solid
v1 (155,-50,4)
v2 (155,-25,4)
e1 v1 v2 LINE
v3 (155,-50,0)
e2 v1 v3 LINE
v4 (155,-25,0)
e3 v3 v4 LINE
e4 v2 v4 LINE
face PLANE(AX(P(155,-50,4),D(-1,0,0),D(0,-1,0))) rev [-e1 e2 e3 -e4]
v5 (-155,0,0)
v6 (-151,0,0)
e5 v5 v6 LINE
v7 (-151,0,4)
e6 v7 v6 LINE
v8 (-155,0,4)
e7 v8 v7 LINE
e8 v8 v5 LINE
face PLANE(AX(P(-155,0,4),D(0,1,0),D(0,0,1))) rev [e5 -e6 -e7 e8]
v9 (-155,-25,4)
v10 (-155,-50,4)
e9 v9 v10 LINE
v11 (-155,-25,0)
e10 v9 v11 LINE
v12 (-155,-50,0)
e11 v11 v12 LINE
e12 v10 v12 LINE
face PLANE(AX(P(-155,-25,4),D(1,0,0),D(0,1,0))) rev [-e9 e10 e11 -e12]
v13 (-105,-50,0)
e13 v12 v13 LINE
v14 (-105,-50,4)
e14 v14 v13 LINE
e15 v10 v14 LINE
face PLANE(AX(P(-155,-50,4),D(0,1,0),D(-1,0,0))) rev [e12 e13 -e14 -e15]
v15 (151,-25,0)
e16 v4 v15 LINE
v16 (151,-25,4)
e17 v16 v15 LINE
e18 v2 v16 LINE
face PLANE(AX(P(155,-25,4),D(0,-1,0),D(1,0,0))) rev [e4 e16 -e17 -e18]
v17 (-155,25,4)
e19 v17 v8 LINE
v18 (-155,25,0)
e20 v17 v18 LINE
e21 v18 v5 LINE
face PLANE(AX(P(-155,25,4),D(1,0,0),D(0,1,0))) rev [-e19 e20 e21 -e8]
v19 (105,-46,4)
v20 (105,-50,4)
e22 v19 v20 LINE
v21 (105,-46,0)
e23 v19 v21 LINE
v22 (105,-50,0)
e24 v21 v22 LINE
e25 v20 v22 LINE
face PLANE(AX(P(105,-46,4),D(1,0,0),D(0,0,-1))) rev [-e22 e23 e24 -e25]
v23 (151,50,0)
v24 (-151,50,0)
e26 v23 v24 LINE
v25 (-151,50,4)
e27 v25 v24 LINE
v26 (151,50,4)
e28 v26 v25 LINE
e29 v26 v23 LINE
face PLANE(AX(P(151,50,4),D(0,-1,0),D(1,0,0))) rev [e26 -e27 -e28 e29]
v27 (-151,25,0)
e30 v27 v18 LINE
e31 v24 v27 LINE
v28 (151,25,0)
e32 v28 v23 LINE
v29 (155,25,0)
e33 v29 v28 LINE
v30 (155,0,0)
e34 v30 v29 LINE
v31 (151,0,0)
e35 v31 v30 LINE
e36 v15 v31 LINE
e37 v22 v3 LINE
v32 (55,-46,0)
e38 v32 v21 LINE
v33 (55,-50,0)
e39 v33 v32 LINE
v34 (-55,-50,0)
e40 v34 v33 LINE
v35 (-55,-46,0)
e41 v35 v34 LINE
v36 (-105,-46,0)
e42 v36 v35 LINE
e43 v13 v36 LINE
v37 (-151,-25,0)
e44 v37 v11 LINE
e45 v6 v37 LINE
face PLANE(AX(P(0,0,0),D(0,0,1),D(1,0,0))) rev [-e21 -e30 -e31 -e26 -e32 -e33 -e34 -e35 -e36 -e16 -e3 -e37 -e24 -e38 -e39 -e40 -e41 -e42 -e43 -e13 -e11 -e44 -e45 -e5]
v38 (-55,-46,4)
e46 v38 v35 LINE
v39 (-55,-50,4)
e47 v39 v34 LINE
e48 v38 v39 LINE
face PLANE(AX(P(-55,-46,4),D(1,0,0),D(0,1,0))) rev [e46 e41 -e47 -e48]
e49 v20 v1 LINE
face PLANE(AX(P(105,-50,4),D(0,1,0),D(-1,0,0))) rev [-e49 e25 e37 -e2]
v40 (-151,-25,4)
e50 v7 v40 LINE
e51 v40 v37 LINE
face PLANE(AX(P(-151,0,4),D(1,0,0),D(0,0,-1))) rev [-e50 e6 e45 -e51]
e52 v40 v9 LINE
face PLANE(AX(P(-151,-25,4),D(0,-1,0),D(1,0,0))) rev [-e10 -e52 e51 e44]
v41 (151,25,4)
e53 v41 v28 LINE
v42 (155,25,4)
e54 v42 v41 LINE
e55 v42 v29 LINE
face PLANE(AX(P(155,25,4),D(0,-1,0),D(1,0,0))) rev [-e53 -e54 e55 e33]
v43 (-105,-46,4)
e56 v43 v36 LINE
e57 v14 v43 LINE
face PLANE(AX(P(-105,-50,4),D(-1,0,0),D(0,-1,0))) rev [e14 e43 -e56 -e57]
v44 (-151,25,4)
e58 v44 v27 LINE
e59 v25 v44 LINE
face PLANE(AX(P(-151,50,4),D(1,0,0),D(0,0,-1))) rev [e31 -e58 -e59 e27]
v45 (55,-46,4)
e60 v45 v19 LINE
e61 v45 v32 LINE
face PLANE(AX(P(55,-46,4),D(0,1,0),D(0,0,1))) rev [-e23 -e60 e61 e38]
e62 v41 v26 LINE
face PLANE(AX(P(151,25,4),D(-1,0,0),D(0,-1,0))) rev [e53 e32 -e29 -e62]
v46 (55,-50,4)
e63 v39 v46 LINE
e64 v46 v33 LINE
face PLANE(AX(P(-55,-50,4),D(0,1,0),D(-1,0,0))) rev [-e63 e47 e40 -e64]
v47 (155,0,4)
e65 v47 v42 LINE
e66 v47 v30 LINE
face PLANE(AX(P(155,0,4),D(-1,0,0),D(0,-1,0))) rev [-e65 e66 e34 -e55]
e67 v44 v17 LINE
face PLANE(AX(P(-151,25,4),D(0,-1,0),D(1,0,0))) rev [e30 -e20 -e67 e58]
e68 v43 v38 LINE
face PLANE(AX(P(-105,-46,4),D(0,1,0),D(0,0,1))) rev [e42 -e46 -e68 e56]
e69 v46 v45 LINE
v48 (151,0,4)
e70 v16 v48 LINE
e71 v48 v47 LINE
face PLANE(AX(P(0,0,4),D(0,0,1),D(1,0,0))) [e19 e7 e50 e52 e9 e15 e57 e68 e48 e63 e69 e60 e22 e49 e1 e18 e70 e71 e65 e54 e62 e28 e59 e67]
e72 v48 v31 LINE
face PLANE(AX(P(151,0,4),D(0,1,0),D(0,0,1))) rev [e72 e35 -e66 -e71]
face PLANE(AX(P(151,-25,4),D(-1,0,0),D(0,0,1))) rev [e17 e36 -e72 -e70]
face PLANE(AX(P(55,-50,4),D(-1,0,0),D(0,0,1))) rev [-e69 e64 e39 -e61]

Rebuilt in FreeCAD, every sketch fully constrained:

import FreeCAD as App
import Part
import Sketcher

V = App.Vector
Q = App.Units.Quantity

doc = App.newDocument("Part")
params = doc.addObject("Spreadsheet::Sheet", "Params")
for row, (alias, value) in enumerate([
    ("sketch1_width", "302 mm"),
    ("sketch1_width2", "4 mm"),
    ("sketch1_width3", "50 mm"),
    ("sketch1_height", "25 mm"),
    ("pad1_length", "4 mm"),
], start=1):
    params.set(f"A{row}", alias)
    params.set(f"B{row}", "=" + value)
    params.setAlias(f"B{row}", alias)

body = doc.addObject("PartDesign::Body", "Body")

# Sketch on XY plane
sketch1 = body.newObject("Sketcher::SketchObject", "Sketch")
sketch1.AttachmentSupport = (doc.getObject("XY_Plane"), [""])
sketch1.MapMode = "FlatFace"
sketch1.addGeometry([
    Part.LineSegment(V(151, 50, 0), V(-151, 50, 0)),  # 0
    Part.LineSegment(V(-151, 50, 0), V(-151, 25, 0)),  # 1
    Part.LineSegment(V(-151, 25, 0), V(-155, 25, 0)),  # 2
    Part.LineSegment(V(-155, 25, 0), V(-155, 0, 0)),  # 3
    Part.LineSegment(V(-155, 0, 0), V(-151, 0, 0)),  # 4
    Part.LineSegment(V(-151, 0, 0), V(-151, -25, 0)),  # 5
    Part.LineSegment(V(-151, -25, 0), V(-155, -25, 0)),  # 6
    Part.LineSegment(V(-155, -25, 0), V(-155, -50, 0)),  # 7
    Part.LineSegment(V(-155, -50, 0), V(-105, -50, 0)),  # 8
    Part.LineSegment(V(-105, -50, 0), V(-105, -46, 0)),  # 9
    Part.LineSegment(V(-105, -46, 0), V(-55, -46, 0)),  # 10
    Part.LineSegment(V(-55, -46, 0), V(-55, -50, 0)),  # 11
    Part.LineSegment(V(-55, -50, 0), V(55, -50, 0)),  # 12
    Part.LineSegment(V(55, -50, 0), V(55, -46, 0)),  # 13
    Part.LineSegment(V(55, -46, 0), V(105, -46, 0)),  # 14
    Part.LineSegment(V(105, -46, 0), V(105, -50, 0)),  # 15
    Part.LineSegment(V(105, -50, 0), V(155, -50, 0)),  # 16
    Part.LineSegment(V(155, -50, 0), V(155, -25, 0)),  # 17
    Part.LineSegment(V(155, -25, 0), V(151, -25, 0)),  # 18
    Part.LineSegment(V(151, -25, 0), V(151, 0, 0)),  # 19
    Part.LineSegment(V(151, 0, 0), V(155, 0, 0)),  # 20
    Part.LineSegment(V(155, 0, 0), V(155, 25, 0)),  # 21
    Part.LineSegment(V(155, 25, 0), V(151, 25, 0)),  # 22
    Part.LineSegment(V(151, 25, 0), V(151, 50, 0)),  # 23
], False)
sketch1.addConstraint([
    Sketcher.Constraint("Coincident", 0, 2, 1, 1),
    Sketcher.Constraint("Coincident", 1, 2, 2, 1),
    Sketcher.Constraint("Coincident", 2, 2, 3, 1),
    Sketcher.Constraint("Coincident", 3, 2, 4, 1),
    Sketcher.Constraint("Coincident", 4, 2, 5, 1),
    Sketcher.Constraint("Coincident", 5, 2, 6, 1),
    Sketcher.Constraint("Coincident", 6, 2, 7, 1),
    Sketcher.Constraint("Coincident", 7, 2, 8, 1),
    Sketcher.Constraint("Coincident", 8, 2, 9, 1),
    Sketcher.Constraint("Coincident", 9, 2, 10, 1),
    Sketcher.Constraint("Coincident", 10, 2, 11, 1),
    Sketcher.Constraint("Coincident", 11, 2, 12, 1),
    Sketcher.Constraint("Coincident", 12, 2, 13, 1),
    Sketcher.Constraint("Coincident", 13, 2, 14, 1),
    Sketcher.Constraint("Coincident", 14, 2, 15, 1),
    Sketcher.Constraint("Coincident", 15, 2, 16, 1),
    Sketcher.Constraint("Coincident", 16, 2, 17, 1),
    Sketcher.Constraint("Coincident", 17, 2, 18, 1),
    Sketcher.Constraint("Coincident", 18, 2, 19, 1),
    Sketcher.Constraint("Coincident", 19, 2, 20, 1),
    Sketcher.Constraint("Coincident", 20, 2, 21, 1),
    Sketcher.Constraint("Coincident", 21, 2, 22, 1),
    Sketcher.Constraint("Coincident", 22, 2, 23, 1),
    Sketcher.Constraint("Coincident", 23, 2, 0, 1),
    Sketcher.Constraint("Horizontal", 0),
    Sketcher.Constraint("Vertical", 1),
    Sketcher.Constraint("Horizontal", 2),
    Sketcher.Constraint("Vertical", 3),
    Sketcher.Constraint("Horizontal", 4),
    Sketcher.Constraint("Vertical", 5),
    Sketcher.Constraint("Horizontal", 6),
    Sketcher.Constraint("Vertical", 7),
    Sketcher.Constraint("Horizontal", 8),
    Sketcher.Constraint("Vertical", 9),
    Sketcher.Constraint("Horizontal", 10),
    Sketcher.Constraint("Vertical", 11),
    Sketcher.Constraint("Horizontal", 12),
    Sketcher.Constraint("Vertical", 13),
    Sketcher.Constraint("Horizontal", 14),
    Sketcher.Constraint("Vertical", 15),
    Sketcher.Constraint("Horizontal", 16),
    Sketcher.Constraint("Vertical", 17),
    Sketcher.Constraint("Horizontal", 18),
    Sketcher.Constraint("Vertical", 19),
    Sketcher.Constraint("Horizontal", 20),
    Sketcher.Constraint("Vertical", 21),
    Sketcher.Constraint("Horizontal", 22),
    Sketcher.Constraint("Vertical", 23),
    Sketcher.Constraint("Symmetric", 2, 2, 17, 2, -1, 1),
    Sketcher.Constraint("Symmetric", 4, 2, 19, 2, -1, 1),
    Sketcher.Constraint("Symmetric", 6, 2, 21, 2, -1, 1),
    Sketcher.Constraint("Symmetric", 10, 2, 13, 2, -2),
    Sketcher.Constraint("Symmetric", 8, 2, 15, 2, -2),
    Sketcher.Constraint("Symmetric", 6, 2, 17, 2, -2),
    Sketcher.Constraint("PointOnObject", 3, 2, -1),
    Sketcher.Constraint("Horizontal", 8, 2, 11, 2),
    Sketcher.Constraint("Vertical", 1, 2, 4, 2),
    Sketcher.Constraint("Vertical", 19, 2, 22, 2),
    Sketcher.Constraint("Equal", 8, 10),
    Sketcher.Constraint("Equal", 1, 3),
    Sketcher.Constraint("Equal", 5, 7),
    Sketcher.Constraint("Equal", 22, 9),
    Sketcher.Constraint("DistanceX", 0, 2, 0, 1, Q("302 mm")),
    Sketcher.Constraint("DistanceX", 2, 2, 2, 1, Q("4 mm")),
    Sketcher.Constraint("DistanceX", 8, 1, 8, 2, Q("50 mm")),
    Sketcher.Constraint("DistanceY", 1, 2, 1, 1, Q("25 mm")),
])
sketch1.setExpression("Constraints[62]", "Params.sketch1_width")
sketch1.setExpression("Constraints[63]", "Params.sketch1_width2")
sketch1.setExpression("Constraints[64]", "Params.sketch1_width3")
sketch1.setExpression("Constraints[65]", "Params.sketch1_height")
pad1 = body.newObject("PartDesign::Pad", "Pad")
pad1.Profile = sketch1
pad1.setExpression("Length", "Params.pad1_length")

doc.recompute()
